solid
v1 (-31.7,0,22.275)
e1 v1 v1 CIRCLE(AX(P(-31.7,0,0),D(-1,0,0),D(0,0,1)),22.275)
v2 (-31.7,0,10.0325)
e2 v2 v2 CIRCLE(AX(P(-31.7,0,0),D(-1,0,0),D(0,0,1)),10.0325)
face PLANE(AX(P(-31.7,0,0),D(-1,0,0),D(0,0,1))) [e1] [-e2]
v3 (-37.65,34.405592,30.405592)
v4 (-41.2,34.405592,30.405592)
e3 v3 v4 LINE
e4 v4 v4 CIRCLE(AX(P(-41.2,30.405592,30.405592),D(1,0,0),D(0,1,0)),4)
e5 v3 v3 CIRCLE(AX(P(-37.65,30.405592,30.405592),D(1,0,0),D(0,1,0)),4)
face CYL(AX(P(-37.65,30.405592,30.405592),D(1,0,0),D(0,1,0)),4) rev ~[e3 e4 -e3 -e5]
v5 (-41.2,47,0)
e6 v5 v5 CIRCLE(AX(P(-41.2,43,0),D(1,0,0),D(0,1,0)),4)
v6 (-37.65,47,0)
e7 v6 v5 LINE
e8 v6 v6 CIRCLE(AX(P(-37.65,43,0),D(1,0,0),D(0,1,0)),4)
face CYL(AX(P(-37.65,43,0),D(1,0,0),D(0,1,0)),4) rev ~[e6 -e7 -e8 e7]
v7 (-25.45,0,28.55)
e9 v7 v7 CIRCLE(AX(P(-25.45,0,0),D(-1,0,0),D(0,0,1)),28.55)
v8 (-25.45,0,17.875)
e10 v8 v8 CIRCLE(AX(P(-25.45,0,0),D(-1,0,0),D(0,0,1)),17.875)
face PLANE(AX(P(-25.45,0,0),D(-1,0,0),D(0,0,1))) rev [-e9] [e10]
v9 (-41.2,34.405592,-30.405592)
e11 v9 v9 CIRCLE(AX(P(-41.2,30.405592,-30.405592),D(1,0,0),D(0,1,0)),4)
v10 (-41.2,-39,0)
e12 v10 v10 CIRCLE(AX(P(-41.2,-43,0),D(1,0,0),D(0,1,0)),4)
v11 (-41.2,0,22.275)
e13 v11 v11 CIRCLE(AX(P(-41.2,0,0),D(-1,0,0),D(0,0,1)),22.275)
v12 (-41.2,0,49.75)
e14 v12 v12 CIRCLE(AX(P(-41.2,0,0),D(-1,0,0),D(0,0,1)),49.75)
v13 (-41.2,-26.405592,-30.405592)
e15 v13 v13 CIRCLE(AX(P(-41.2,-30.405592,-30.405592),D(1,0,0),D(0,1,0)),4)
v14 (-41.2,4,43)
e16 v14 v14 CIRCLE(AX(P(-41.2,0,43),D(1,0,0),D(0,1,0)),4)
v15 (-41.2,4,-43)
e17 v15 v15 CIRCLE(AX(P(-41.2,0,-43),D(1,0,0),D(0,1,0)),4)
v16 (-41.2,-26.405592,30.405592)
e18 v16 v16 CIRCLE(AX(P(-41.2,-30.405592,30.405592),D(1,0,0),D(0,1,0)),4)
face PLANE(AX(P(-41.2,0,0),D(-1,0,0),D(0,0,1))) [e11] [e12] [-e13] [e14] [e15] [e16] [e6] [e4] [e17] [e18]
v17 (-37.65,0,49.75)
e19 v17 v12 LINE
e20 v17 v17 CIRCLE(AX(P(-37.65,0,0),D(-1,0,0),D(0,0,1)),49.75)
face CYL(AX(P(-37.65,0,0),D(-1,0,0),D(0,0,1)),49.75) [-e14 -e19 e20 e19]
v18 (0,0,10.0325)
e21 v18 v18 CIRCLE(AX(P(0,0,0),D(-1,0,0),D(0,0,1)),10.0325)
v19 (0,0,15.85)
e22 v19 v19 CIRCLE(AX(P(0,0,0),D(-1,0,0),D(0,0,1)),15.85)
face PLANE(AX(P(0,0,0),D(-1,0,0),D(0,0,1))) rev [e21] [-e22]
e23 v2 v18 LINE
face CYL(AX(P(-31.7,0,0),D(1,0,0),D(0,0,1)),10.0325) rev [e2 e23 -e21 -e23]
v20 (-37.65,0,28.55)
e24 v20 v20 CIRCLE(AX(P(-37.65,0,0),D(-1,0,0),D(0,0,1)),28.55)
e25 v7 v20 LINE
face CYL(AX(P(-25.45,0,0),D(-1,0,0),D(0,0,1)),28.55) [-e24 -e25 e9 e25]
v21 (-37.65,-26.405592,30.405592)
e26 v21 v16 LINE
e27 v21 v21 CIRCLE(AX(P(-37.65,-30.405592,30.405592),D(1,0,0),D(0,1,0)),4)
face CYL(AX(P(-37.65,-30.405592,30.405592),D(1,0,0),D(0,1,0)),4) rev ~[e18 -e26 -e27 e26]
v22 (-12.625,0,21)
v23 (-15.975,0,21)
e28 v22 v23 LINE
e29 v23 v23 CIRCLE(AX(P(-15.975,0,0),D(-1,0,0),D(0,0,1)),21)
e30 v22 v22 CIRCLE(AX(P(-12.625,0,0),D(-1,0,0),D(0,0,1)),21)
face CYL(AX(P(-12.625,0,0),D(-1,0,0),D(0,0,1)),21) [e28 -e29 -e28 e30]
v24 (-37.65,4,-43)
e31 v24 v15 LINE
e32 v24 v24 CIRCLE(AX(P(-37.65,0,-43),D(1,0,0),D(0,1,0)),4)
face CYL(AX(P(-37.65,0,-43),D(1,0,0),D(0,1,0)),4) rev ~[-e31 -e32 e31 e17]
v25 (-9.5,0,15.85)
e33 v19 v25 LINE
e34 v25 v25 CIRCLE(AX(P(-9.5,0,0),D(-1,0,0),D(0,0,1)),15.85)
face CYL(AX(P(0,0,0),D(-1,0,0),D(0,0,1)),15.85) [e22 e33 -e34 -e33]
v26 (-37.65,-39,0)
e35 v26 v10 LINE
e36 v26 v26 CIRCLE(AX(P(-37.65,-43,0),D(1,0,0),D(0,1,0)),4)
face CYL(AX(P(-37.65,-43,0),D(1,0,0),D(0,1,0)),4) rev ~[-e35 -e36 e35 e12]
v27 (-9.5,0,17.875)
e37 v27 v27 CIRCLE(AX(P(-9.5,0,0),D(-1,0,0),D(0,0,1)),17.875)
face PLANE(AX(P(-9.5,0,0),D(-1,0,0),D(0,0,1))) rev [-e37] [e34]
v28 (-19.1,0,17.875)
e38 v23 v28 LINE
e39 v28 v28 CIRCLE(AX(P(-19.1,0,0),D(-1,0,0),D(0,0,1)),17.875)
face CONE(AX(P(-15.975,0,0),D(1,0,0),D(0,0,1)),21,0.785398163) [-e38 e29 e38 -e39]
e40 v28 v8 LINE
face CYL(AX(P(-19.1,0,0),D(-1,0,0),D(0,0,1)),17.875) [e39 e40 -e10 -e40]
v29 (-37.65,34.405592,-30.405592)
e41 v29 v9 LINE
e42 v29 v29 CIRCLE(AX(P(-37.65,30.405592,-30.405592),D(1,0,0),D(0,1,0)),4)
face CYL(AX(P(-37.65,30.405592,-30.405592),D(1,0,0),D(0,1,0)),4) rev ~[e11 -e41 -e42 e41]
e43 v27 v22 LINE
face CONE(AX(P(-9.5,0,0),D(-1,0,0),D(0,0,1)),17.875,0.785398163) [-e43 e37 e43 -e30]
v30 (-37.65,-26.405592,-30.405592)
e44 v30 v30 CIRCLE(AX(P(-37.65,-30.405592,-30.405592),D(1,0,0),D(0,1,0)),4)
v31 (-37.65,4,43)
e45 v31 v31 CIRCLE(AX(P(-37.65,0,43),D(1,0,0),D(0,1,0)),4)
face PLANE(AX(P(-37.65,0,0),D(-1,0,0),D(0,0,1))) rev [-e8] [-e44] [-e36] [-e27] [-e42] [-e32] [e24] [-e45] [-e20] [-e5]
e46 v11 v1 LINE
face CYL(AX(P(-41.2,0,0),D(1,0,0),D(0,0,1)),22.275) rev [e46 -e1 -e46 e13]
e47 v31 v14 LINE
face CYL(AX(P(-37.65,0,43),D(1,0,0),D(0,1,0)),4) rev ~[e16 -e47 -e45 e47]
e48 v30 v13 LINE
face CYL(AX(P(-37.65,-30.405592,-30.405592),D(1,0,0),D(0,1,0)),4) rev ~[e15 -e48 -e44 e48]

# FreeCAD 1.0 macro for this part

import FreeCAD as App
import Part
import Sketcher
Q = App.Units.Quantity

doc = App.newDocument("Part")
body = doc.addObject("PartDesign::Body", "Body")

# Sketch on XZ plane
sketch1 = doc.addObject("Sketcher::SketchObject", "Sketch")
body.addObject(sketch1)
sketch1.AttachmentSupport = (doc.XZ_Plane, [""])
sketch1.MapMode = "FlatFace"
sketch1.addGeometry(Part.LineSegment(App.Vector(-31.7, 10.0325, 0), App.Vector(0, 10.0325, 0)), False)
sketch1.addGeometry(Part.LineSegment(App.Vector(0, 10.0325, 0), App.Vector(0, 15.85, 0)), False)
sketch1.addGeometry(Part.LineSegment(App.Vector(0, 15.85, 0), App.Vector(-9.5, 15.85, 0)), False)
sketch1.addGeometry(Part.LineSegment(App.Vector(-9.5, 15.85, 0), App.Vector(-9.5, 17.875, 0)), False)
sketch1.addGeometry(Part.LineSegment(App.Vector(-9.5, 17.875, 0), App.Vector(-12.625, 21, 0)), False)
sketch1.addGeometry(Part.LineSegment(App.Vector(-12.625, 21, 0), App.Vector(-15.975, 21, 0)), False)
sketch1.addGeometry(Part.LineSegment(App.Vector(-15.975, 21, 0), App.Vector(-19.1, 17.875, 0)), False)
sketch1.addGeometry(Part.LineSegment(App.Vector(-19.1, 17.875, 0), App.Vector(-25.45, 17.875, 0)), False)
sketch1.addGeometry(Part.LineSegment(App.Vector(-25.45, 17.875, 0), App.Vector(-25.45, 28.55, 0)), False)
sketch1.addGeometry(Part.LineSegment(App.Vector(-25.45, 28.55, 0), App.Vector(-37.65, 28.55, 0)), False)
sketch1.addGeometry(Part.LineSegment(App.Vector(-37.65, 28.55, 0), App.Vector(-37.65, 49.75, 0)), False)
sketch1.addGeometry(Part.LineSegment(App.Vector(-37.65, 49.75, 0), App.Vector(-41.2, 49.75, 0)), False)
sketch1.addGeometry(Part.LineSegment(App.Vector(-41.2, 49.75, 0), App.Vector(-41.2, 22.275, 0)), False)
sketch1.addGeometry(Part.LineSegment(App.Vector(-41.2, 22.275, 0), App.Vector(-31.7, 22.275, 0)), False)
sketch1.addGeometry(Part.LineSegment(App.Vector(-31.7, 22.275, 0), App.Vector(-31.7, 10.0325, 0)), False)
sketch1.addConstraint(Sketcher.Constraint("Coincident", 0, 2, 1, 1))
sketch1.addConstraint(Sketcher.Constraint("Coincident", 1, 2, 2, 1))
sketch1.addConstraint(Sketcher.Constraint("Coincident", 2, 2, 3, 1))
sketch1.addConstraint(Sketcher.Constraint("Coincident", 3, 2, 4, 1))
sketch1.addConstraint(Sketcher.Constraint("Coincident", 4, 2, 5, 1))
sketch1.addConstraint(Sketcher.Constraint("Coincident", 5, 2, 6, 1))
sketch1.addConstraint(Sketcher.Constraint("Coincident", 6, 2, 7, 1))
sketch1.addConstraint(Sketcher.Constraint("Coincident", 7, 2, 8, 1))
sketch1.addConstraint(Sketcher.Constraint("Coincident", 8, 2, 9, 1))
sketch1.addConstraint(Sketcher.Constraint("Coincident", 9, 2, 10, 1))
sketch1.addConstraint(Sketcher.Constraint("Coincident", 10, 2, 11, 1))
sketch1.addConstraint(Sketcher.Constraint("Coincident", 11, 2, 12, 1))
sketch1.addConstraint(Sketcher.Constraint("Coincident", 12, 2, 13, 1))
sketch1.addConstraint(Sketcher.Constraint("Coincident", 13, 2, 14, 1))
sketch1.addConstraint(Sketcher.Constraint("Coincident", 14, 2, 0, 1))
sketch1.addConstraint(Sketcher.Constraint("Horizontal", 0))
sketch1.addConstraint(Sketcher.Constraint("Vertical", 1))
sketch1.addConstraint(Sketcher.Constraint("Horizontal", 2))
sketch1.addConstraint(Sketcher.Constraint("Vertical", 3))
sketch1.addConstraint(Sketcher.Constraint("Horizontal", 5))
sketch1.addConstraint(Sketcher.Constraint("Horizontal", 7))
sketch1.addConstraint(Sketcher.Constraint("Vertical", 8))
sketch1.addConstraint(Sketcher.Constraint("Horizontal", 9))
sketch1.addConstraint(Sketcher.Constraint("Vertical", 10))
sketch1.addConstraint(Sketcher.Constraint("Horizontal", 11))
sketch1.addConstraint(Sketcher.Constraint("Vertical", 12))
sketch1.addConstraint(Sketcher.Constraint("Horizontal", 13))
sketch1.addConstraint(Sketcher.Constraint("Vertical", 14))
sketch1.addConstraint(Sketcher.Constraint("PointOnObject", 0, 2, -2))
sketch1.addConstraint(Sketcher.Constraint("Perpendicular", 4, 6))
sketch1.addConstraint(Sketcher.Constraint("Horizontal", 3, 2, 6, 2))
sketch1.addConstraint(Sketcher.Constraint("Equal", 2, 13))
sketch1.addConstraint(Sketcher.Constraint("Equal", 4, 6))
sketch1.addConstraint(Sketcher.Constraint("DistanceX", 0, 1, 0, 2, Q("31.7 mm")))
sketch1.addConstraint(Sketcher.Constraint("DistanceX", 2, 2, 2, 1, Q("9.5 mm")))
sketch1.addConstraint(Sketcher.Constraint("DistanceX", 9, 2, 9, 1, Q("12.2 mm")))
sketch1.addConstraint(Sketcher.Constraint("DistanceY", 10, 1, 10, 2, Q("21.2 mm")))
sketch1.addConstraint(Sketcher.Constraint("DistanceY", -1, 1, 4, 2, Q("21 mm")))
sketch1.addConstraint(Sketcher.Constraint("DistanceX", 5, 2, 5, 1, Q("3.35 mm")))
sketch1.addConstraint(Sketcher.Constraint("DistanceX", 7, 2, 7, 1, Q("6.35 mm")))
sketch1.addConstraint(Sketcher.Constraint("DistanceX", 11, 2, 11, 1, Q("3.55 mm")))
sketch1.addConstraint(Sketcher.Constraint("DistanceY", 7, 2, 12, 2, Q("4.4 mm")))
sketch1.addConstraint(Sketcher.Constraint("DistanceY", 3, 1, 3, 2, Q("2.025 mm")))
sketch1.addConstraint(Sketcher.Constraint("DistanceY", 8, 1, 8, 2, Q("10.675 mm")))
sketch1.addConstraint(Sketcher.Constraint("DistanceY", 1, 1, 1, 2, Q("5.8175 mm")))
revolution = doc.addObject("PartDesign::Revolution", "Revolution")
body.addObject(revolution)
revolution.Profile = sketch1
revolution.ReferenceAxis = (sketch1, ["H_Axis"])
revolution.Angle = 360

# Sketch on YZ plane
sketch2 = doc.addObject("Sketcher::SketchObject", "Sketch001")
body.addObject(sketch2)
sketch2.AttachmentSupport = (doc.YZ_Plane, [""])
sketch2.MapMode = "FlatFace"
sketch2.AttachmentOffset = App.Placement(App.Vector(0, 0, -37.65), App.Rotation())
sketch2.addGeometry(Part.Circle(App.Vector(0, 43, 0), App.Vector(0, 0, 1), 4), False)
sketch2.addGeometry(Part.Circle(App.Vector(30.405592, 30.405592, 0), App.Vector(0, 0, 1), 4), False)
sketch2.addGeometry(Part.Circle(App.Vector(43, 0, 0), App.Vector(0, 0, 1), 4), False)
sketch2.addGeometry(Part.Circle(App.Vector(30.405592, -30.405592, 0), App.Vector(0, 0, 1), 4), False)
sketch2.addGeometry(Part.Circle(App.Vector(0, -43, 0), App.Vector(0, 0, 1), 4), False)
sketch2.addGeometry(Part.Circle(App.Vector(-30.405592, -30.405592, 0), App.Vector(0, 0, 1), 4), False)
sketch2.addGeometry(Part.Circle(App.Vector(-43, 0, 0), App.Vector(0, 0, 1), 4), False)
sketch2.addGeometry(Part.Circle(App.Vector(-30.405592, 30.405592, 0), App.Vector(0, 0, 1), 4), False)
sketch2.addConstraint(Sketcher.Constraint("Equal", 0, 1))
sketch2.addConstraint(Sketcher.Constraint("Equal", 1, 2))
sketch2.addConstraint(Sketcher.Constraint("Equal", 2, 3))
sketch2.addConstraint(Sketcher.Constraint("Equal", 3, 4))
sketch2.addConstraint(Sketcher.Constraint("Equal", 4, 5))
sketch2.addConstraint(Sketcher.Constraint("Equal", 5, 6))
sketch2.addConstraint(Sketcher.Constraint("Equal", 6, 7))
sketch2.addConstraint(Sketcher.Constraint("Symmetric", 0, 3, 4, 3, -1, 1))
sketch2.addConstraint(Sketcher.Constraint("Symmetric", 1, 3, 5, 3, -1, 1))
sketch2.addConstraint(Sketcher.Constraint("Symmetric", 2, 3, 6, 3, -1, 1))
sketch2.addConstraint(Sketcher.Constraint("Symmetric", 3, 3, 7, 3, -1, 1))
sketch2.addConstraint(Sketcher.Constraint("Symmetric", 3, 3, 5, 3, -2))
sketch2.addConstraint(Sketcher.Constraint("PointOnObject", 0, 3, -2))
sketch2.addConstraint(Sketcher.Constraint("PointOnObject", 2, 3, -1))
sketch2.addConstraint(Sketcher.Constraint("Diameter", 0, Q("8 mm")))
sketch2.addConstraint(Sketcher.Constraint("DistanceY", -1, 1, 0, 3, Q("43 mm")))
sketch2.addConstraint(Sketcher.Constraint("DistanceX", -1, 1, 2, 3, Q("43 mm")))
sketch2.addConstraint(Sketcher.Constraint("DistanceX", -1, 1, 1, 3, Q("30.405592 mm")))
sketch2.addConstraint(Sketcher.Constraint("DistanceY", -1, 1, 1, 3, Q("30.405592 mm")))
pocket1 = doc.addObject("PartDesign::Pocket", "Pocket")
body.addObject(pocket1)
pocket1.Profile = sketch2
pocket1.Type = "ThroughAll"

doc.recompute()
